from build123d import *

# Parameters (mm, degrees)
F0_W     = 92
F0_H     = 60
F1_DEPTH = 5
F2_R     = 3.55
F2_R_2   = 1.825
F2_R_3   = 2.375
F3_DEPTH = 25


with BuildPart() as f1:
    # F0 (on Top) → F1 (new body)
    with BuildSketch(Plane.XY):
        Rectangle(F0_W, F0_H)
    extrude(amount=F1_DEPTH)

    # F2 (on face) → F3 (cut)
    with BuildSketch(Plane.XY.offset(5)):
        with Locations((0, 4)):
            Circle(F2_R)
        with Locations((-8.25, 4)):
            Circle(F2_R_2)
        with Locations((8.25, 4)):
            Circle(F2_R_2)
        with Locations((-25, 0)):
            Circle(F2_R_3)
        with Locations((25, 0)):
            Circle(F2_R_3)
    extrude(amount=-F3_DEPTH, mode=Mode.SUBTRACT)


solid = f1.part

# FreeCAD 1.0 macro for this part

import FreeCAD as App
import Part
import Sketcher


def add_polygon(sketch, points):
    """Adds a closed chain of lines whose ends are joined by coincident constraints."""
    first, n = sketch.GeometryCount, len(points)
    for a, b in zip(points, points[1:] + points[:1]):
        sketch.addGeometry(Part.LineSegment(App.Vector(*a, 0), App.Vector(*b, 0)), False)
    for i in range(n):
        sketch.addConstraint(Sketcher.Constraint("Coincident", first + i, 2, first + (i + 1) % n, 1))

doc = App.newDocument("Part")
body = doc.addObject("PartDesign::Body", "Body")

# Sketch on XY plane
sketch1 = body.newObject("Sketcher::SketchObject", "Sketch")
sketch1.AttachmentSupport = (doc.getObject("XY_Plane"), [""])
sketch1.MapMode = "FlatFace"
add_polygon(sketch1, [(-46, 30), (-46, -30), (46, -30), (46, 30)])  # lines 0-3
sketch1.addConstraint([
    Sketcher.Constraint("Vertical", 0),
    Sketcher.Constraint("Horizontal", 1),
    Sketcher.Constraint("Vertical", 2),
    Sketcher.Constraint("Horizontal", 3),
    Sketcher.Constraint("Symmetric", 0, 2, 2, 2, -1, 1),
    Sketcher.Constraint("DistanceX", 1, 1, 1, 2, 92.0),
    Sketcher.Constraint("DistanceY", 0, 2, 0, 1, 60.0),
])
pad1 = body.newObject("PartDesign::Pad", "Pad")
pad1.Profile = sketch1
pad1.Length = 5

# Sketch on XY plane
sketch2 = body.newObject("Sketcher::SketchObject", "Sketch001")
sketch2.AttachmentSupport = (doc.getObject("XY_Plane"), [""])
sketch2.MapMode = "FlatFace"
sketch2.AttachmentOffset = App.Placement(App.Vector(0, 0, 5), App.Rotation())
sketch2.addGeometry([
    Part.Circle(App.Vector(0, 4, 0), App.Vector(0, 0, 1), 3.5),  # 0
    Part.Circle(App.Vector(-8.2, 4, 0), App.Vector(0, 0, 1), 1.8),  # 1
    Part.Circle(App.Vector(8.2, 4, 0), App.Vector(0, 0, 1), 1.8),  # 2
    Part.Circle(App.Vector(-25, 0, 0), App.Vector(0, 0, 1), 2.4),  # 3
    Part.Circle(App.Vector(25, 0, 0), App.Vector(0, 0, 1), 2.4),  # 4
], False)
sketch2.addConstraint([
    Sketcher.Constraint("Equal", 1, 2),
    Sketcher.Constraint("Equal", 3, 4),
    Sketcher.Constraint("Symmetric", 3, 3, 4, 3, -1, 1),
    Sketcher.Constraint("Symmetric", 1, 3, 2, 3, -2),
    Sketcher.Constraint("PointOnObject", 0, 3, -2),
    Sketcher.Constraint("PointOnObject", 3, 3, -1),
    Sketcher.Constraint("Horizontal", 0, 3, 1, 3),
    Sketcher.Constraint("Diameter", 0, 7.1),
    Sketcher.Constraint("Diameter", 1, 3.65),
    Sketcher.Constraint("Diameter", 3, 4.75),
    Sketcher.Constraint("DistanceY", -1, 1, 0, 3, 4.0),
    Sketcher.Constraint("DistanceX", 3, 3, -1, 1, 25.0),
    Sketcher.Constraint("DistanceX", 1, 3, 2, 3, 16.5),
])
pocket1 = body.newObject("PartDesign::Pocket", "Pocket")
pocket1.Profile = sketch2
pocket1.Length = 25

doc.recompute()
